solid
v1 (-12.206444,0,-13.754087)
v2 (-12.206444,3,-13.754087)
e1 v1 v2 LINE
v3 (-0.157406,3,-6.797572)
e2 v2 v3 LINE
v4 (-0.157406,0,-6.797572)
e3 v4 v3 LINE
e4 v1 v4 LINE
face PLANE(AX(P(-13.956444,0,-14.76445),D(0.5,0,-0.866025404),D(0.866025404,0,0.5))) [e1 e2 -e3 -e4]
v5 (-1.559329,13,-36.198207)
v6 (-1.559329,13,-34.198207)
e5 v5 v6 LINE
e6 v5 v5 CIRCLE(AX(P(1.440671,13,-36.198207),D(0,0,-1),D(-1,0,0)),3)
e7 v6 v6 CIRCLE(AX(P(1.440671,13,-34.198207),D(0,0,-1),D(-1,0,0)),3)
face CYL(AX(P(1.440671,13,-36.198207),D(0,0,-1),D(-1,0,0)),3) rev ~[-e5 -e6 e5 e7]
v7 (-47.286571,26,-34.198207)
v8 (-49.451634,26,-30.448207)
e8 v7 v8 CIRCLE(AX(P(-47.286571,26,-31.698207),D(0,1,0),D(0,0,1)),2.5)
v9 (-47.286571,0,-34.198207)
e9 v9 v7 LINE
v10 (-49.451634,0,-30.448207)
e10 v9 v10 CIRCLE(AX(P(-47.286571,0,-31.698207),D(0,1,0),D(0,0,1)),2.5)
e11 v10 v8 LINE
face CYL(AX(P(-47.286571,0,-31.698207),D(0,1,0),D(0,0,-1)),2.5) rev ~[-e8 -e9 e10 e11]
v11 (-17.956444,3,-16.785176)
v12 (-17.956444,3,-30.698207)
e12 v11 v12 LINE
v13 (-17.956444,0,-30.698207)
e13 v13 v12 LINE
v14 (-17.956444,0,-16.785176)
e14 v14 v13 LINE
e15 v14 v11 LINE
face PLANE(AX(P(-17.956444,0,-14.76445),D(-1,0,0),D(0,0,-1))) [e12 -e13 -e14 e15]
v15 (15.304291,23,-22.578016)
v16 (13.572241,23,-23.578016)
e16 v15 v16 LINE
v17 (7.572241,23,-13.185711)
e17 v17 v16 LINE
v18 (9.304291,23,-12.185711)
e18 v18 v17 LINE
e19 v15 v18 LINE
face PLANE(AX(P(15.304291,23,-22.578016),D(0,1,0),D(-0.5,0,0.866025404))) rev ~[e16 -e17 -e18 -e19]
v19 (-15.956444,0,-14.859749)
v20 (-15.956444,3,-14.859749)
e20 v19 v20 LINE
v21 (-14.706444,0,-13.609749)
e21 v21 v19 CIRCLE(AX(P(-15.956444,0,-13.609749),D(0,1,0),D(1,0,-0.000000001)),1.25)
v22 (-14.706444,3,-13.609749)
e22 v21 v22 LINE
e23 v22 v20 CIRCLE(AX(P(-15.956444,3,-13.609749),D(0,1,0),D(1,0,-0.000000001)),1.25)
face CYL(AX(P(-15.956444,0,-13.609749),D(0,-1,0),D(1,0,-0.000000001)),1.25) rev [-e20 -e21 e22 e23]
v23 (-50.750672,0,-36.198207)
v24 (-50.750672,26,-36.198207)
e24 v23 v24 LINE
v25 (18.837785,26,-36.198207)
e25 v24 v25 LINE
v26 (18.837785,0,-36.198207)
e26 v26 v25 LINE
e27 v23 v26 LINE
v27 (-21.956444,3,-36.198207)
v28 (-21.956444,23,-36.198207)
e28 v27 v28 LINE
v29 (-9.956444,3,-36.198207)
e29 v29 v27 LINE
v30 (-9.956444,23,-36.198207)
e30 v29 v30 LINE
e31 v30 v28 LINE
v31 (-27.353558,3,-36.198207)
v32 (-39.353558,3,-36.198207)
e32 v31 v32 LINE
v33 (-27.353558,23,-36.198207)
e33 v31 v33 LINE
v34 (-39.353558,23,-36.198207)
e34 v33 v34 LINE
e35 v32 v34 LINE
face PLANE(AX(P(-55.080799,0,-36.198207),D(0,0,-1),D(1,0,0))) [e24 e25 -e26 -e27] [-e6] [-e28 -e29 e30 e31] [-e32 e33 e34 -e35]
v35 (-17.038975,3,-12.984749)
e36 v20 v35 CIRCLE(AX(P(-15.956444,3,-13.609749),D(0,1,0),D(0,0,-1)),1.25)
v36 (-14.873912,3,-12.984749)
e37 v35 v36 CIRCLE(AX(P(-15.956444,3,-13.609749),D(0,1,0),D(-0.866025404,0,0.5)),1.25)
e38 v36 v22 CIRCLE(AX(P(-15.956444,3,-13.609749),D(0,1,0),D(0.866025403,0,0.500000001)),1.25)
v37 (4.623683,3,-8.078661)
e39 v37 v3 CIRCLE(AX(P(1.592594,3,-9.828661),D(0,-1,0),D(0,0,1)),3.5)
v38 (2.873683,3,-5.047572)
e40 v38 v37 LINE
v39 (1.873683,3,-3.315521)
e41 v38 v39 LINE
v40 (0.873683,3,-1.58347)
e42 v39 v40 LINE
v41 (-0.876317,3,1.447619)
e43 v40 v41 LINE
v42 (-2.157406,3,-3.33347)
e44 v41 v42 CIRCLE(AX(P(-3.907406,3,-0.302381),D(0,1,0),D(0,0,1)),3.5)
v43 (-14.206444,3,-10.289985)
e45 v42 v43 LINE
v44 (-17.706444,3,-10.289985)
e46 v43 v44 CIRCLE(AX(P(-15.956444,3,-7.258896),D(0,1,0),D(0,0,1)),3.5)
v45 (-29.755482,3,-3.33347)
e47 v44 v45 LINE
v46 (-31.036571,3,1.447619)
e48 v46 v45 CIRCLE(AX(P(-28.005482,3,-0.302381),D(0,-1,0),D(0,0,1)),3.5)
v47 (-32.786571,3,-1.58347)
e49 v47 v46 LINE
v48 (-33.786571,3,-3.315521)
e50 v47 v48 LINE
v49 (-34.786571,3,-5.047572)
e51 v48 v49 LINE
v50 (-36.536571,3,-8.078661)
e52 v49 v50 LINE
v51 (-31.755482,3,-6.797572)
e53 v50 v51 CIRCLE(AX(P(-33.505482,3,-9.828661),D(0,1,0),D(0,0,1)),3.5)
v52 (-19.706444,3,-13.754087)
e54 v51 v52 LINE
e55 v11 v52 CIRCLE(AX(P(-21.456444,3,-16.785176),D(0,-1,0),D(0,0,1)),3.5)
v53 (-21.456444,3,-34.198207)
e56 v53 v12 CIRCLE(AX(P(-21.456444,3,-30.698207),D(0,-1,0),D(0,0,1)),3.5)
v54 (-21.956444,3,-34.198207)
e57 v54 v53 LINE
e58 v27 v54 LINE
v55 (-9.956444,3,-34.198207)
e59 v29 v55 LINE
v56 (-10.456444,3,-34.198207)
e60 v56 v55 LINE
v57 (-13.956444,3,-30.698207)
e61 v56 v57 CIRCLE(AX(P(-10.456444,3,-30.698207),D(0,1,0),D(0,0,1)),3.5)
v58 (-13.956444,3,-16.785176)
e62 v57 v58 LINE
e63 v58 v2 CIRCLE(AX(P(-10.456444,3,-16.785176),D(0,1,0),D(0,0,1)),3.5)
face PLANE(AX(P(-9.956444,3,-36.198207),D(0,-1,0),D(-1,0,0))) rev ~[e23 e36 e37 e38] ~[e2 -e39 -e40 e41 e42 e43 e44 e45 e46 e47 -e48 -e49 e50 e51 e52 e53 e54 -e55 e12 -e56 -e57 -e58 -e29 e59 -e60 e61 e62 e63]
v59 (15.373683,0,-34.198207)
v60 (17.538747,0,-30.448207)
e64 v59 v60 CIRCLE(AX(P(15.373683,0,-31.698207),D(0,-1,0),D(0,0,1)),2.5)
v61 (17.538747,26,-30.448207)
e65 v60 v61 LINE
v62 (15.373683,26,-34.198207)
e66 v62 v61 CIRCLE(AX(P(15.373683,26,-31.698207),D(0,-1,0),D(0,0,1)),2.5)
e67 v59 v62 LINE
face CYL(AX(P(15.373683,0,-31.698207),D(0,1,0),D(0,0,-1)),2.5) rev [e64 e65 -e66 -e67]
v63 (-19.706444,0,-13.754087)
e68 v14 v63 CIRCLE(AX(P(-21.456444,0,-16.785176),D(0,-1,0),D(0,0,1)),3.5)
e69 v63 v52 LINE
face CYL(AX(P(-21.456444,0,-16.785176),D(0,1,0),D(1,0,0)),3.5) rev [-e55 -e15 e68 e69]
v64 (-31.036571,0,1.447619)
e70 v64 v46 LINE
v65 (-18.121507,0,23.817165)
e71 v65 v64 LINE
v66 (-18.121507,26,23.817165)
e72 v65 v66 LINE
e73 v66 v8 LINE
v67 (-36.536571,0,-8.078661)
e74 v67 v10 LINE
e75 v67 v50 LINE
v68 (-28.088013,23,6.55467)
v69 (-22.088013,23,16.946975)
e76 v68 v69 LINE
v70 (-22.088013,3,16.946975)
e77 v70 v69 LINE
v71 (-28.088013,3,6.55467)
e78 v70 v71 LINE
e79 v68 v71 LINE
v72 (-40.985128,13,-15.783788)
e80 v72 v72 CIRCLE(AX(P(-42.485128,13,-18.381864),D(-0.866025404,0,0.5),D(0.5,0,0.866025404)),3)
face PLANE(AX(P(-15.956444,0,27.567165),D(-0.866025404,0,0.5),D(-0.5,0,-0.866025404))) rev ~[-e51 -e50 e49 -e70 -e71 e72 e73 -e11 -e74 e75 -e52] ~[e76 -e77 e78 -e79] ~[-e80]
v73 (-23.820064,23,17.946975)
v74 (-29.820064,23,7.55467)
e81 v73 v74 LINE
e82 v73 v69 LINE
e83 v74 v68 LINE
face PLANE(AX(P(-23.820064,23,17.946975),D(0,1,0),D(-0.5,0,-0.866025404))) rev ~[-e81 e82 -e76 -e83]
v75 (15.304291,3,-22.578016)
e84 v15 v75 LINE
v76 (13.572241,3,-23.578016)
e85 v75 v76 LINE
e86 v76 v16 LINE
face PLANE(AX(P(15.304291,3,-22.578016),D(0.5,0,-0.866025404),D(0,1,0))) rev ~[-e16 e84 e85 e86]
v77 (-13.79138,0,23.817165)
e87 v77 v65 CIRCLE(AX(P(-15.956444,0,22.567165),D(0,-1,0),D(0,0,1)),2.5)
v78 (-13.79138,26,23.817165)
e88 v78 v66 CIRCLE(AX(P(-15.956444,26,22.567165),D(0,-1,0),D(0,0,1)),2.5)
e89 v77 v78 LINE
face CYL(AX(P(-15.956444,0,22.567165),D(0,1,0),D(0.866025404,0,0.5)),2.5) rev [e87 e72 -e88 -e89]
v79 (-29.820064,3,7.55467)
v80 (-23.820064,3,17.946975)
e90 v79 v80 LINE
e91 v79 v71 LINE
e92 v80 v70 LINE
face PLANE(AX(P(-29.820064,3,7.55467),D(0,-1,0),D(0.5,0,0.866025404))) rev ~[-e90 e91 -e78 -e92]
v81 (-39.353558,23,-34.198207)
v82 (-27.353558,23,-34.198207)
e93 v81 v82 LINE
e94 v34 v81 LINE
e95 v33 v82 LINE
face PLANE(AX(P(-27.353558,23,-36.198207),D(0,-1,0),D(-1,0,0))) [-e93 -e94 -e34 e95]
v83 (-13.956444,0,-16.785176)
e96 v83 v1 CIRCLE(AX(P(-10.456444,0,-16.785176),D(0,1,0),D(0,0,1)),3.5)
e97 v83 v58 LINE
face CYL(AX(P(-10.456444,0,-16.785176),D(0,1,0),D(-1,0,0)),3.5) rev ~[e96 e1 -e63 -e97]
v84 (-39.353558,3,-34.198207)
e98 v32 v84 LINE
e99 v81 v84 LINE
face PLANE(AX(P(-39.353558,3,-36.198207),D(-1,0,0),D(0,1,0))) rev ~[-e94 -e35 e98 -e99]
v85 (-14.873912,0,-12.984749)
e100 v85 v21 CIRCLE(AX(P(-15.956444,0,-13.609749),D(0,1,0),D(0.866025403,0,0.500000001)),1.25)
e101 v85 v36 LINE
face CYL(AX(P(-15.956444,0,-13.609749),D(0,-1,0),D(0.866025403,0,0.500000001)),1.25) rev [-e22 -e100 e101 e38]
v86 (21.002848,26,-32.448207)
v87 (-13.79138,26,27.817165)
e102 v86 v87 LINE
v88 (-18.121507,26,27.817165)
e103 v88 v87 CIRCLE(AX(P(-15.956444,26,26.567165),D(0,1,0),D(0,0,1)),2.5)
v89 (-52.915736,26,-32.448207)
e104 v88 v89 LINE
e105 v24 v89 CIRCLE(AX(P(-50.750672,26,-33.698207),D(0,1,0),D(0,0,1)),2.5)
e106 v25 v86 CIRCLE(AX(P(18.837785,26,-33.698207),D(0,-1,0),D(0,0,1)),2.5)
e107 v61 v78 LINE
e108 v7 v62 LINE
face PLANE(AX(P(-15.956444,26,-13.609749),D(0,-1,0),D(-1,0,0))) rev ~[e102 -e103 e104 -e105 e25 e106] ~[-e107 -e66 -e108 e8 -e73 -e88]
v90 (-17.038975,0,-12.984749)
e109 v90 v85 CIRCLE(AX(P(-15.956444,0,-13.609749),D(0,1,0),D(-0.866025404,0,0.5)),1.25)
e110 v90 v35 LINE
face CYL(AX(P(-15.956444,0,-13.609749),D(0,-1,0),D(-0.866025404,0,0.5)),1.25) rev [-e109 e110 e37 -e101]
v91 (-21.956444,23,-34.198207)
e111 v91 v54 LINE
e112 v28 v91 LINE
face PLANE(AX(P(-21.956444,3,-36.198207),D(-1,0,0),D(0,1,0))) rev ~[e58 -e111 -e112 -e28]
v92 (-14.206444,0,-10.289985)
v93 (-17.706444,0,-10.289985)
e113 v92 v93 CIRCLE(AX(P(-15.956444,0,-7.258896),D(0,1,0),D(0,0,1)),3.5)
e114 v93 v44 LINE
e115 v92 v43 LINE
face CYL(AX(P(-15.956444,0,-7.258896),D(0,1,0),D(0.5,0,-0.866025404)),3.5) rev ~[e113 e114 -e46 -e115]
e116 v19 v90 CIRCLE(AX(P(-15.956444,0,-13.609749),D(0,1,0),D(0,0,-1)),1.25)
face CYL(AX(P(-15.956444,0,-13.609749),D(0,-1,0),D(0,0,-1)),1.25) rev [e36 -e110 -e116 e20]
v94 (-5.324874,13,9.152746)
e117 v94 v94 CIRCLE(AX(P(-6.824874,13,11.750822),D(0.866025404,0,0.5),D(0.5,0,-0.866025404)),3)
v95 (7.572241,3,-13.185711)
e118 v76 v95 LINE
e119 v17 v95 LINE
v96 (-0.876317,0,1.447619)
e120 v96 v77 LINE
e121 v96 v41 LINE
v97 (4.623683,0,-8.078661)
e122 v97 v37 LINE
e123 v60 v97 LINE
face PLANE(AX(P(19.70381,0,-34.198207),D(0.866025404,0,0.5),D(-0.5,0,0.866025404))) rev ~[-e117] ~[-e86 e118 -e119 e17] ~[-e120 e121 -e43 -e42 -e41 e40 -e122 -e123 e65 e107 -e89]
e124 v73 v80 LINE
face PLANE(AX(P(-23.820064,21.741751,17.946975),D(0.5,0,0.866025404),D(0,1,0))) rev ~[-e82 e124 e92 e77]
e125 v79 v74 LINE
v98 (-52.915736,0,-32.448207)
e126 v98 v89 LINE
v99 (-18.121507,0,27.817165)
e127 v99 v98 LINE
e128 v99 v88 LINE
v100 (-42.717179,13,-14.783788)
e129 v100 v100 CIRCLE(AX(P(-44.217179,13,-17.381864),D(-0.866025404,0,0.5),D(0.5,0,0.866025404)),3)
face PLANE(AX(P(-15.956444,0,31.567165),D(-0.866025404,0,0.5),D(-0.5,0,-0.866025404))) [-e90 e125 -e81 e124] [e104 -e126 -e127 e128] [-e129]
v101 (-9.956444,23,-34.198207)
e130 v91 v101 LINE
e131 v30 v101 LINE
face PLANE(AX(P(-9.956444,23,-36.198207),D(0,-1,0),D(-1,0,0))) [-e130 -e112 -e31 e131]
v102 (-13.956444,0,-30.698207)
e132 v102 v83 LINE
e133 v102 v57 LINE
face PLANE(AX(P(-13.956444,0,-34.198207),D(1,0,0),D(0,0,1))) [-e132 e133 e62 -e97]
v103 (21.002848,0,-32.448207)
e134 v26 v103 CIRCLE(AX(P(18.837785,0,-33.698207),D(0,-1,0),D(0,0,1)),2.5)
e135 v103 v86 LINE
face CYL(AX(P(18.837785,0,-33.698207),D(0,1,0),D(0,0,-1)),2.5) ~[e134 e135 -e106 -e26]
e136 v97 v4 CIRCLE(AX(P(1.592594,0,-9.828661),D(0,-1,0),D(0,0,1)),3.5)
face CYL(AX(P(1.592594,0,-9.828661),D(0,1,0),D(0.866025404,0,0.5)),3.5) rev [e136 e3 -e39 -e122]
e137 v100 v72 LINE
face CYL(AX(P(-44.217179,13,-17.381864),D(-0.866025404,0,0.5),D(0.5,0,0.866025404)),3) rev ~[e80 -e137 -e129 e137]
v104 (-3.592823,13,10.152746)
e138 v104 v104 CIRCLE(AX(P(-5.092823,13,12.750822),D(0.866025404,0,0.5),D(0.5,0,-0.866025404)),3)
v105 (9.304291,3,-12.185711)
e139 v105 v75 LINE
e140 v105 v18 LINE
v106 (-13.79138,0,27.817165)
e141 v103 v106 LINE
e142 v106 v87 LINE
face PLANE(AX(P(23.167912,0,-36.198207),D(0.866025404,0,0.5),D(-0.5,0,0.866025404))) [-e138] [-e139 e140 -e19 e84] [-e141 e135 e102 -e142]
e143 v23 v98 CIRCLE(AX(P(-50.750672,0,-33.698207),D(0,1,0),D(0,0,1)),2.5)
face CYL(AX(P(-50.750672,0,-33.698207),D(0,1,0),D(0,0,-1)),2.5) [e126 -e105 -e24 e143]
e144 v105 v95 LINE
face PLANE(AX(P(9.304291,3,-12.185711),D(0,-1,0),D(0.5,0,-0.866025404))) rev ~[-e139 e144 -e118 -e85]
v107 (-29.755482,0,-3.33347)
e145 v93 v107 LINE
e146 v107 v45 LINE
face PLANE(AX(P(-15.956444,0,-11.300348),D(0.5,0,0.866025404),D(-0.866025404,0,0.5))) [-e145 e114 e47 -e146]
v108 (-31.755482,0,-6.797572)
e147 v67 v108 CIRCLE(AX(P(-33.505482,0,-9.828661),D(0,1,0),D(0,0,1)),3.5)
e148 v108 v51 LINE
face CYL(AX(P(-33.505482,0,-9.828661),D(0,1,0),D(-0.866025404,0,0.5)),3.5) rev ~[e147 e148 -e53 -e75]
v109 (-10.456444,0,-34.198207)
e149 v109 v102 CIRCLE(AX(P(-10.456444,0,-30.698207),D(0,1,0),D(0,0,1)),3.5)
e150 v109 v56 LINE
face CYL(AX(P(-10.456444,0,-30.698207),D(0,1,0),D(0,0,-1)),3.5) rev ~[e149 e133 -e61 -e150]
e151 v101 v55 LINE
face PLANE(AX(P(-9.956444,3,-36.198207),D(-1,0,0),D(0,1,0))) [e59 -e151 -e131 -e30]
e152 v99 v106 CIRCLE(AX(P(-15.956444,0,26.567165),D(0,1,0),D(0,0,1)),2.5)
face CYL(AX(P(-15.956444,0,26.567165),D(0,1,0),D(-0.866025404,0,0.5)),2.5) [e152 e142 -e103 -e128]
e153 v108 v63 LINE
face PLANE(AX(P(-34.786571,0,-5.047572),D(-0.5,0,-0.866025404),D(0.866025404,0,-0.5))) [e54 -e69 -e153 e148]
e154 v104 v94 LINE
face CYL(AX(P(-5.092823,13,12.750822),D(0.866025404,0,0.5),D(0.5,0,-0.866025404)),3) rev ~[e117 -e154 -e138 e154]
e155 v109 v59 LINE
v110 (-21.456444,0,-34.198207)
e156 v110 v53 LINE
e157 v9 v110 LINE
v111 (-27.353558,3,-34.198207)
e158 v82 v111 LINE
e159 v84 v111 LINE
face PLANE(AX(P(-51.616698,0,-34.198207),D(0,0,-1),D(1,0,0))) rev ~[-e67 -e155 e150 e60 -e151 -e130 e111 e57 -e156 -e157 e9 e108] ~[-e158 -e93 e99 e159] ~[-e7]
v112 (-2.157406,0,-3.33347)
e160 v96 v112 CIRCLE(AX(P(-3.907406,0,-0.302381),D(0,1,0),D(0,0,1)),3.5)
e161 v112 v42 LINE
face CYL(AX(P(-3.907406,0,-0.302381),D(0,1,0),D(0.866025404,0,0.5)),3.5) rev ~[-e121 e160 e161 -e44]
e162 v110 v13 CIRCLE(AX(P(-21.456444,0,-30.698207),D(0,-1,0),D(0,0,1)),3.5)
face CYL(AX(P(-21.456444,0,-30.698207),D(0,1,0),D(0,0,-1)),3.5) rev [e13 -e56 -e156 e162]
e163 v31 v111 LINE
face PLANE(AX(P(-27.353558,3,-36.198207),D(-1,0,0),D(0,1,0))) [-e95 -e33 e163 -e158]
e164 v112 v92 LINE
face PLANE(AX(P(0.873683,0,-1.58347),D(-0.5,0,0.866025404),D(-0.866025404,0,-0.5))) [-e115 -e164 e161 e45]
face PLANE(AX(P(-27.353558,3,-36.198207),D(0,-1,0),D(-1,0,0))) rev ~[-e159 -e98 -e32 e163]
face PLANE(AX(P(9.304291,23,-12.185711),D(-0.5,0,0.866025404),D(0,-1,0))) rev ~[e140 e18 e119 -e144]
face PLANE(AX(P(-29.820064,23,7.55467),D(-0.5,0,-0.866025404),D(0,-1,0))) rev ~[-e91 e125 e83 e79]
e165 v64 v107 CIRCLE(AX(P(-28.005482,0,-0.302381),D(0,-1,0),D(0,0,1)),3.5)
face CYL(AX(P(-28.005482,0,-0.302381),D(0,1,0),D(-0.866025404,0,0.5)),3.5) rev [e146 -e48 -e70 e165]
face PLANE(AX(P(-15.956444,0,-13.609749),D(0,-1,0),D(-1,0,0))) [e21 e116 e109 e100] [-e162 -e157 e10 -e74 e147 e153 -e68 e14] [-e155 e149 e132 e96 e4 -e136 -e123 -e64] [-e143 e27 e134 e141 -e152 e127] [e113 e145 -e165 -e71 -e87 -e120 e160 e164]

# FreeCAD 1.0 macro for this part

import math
import FreeCAD as App
import Part
import Sketcher
Q = App.Units.Quantity


def edges_at(feature, points):
    """Names of the edges that pass closest to the given points."""
    edges = feature.Shape.Edges
    near = lambda p: min(range(len(edges)), key=lambda i: edges[i].distToShape(Part.Vertex(*p))[0])
    return sorted({f"Edge{near(p) + 1}" for p in points})

doc = App.newDocument("Part")
body = doc.addObject("PartDesign::Body", "Body")

sketch1 = doc.addObject("Sketcher::SketchObject", "Sketch")
body.addObject(sketch1)
sketch1.AttachmentSupport = (doc.XZ_Plane, [""])
sketch1.MapMode = "FlatFace"
sketch1.addGeometry([
    Part.LineSegment(App.Vector(23, -36, 0), App.Vector(-55, -36, 0)),
    Part.LineSegment(App.Vector(-55, -36, 0), App.Vector(-16, 32, 0)),
    Part.LineSegment(App.Vector(-16, 32, 0), App.Vector(23, -36, 0)),
    Part.LineSegment(App.Vector(-52, -34, 0), App.Vector(20, -34, 0)),
    Part.LineSegment(App.Vector(20, -34, 0), App.Vector(-16, 28, 0)),
    Part.LineSegment(App.Vector(-16, 28, 0), App.Vector(-52, -34, 0)),
], False)
sketch1.addConstraint([
    Sketcher.Constraint("Coincident", 0, 2, 1, 1),
    Sketcher.Constraint("Coincident", 1, 2, 2, 1),
    Sketcher.Constraint("Coincident", 2, 2, 0, 1),
    Sketcher.Constraint("Coincident", 3, 2, 4, 1),
    Sketcher.Constraint("Coincident", 4, 2, 5, 1),
    Sketcher.Constraint("Coincident", 5, 2, 3, 1),
    Sketcher.Constraint("Horizontal", 0),
    Sketcher.Constraint("Horizontal", 3),
    Sketcher.Constraint("Parallel", 2, 4),
    Sketcher.Constraint("Parallel", 1, 5),
    Sketcher.Constraint("Vertical", 1, 2, 4, 2),
    Sketcher.Constraint("Equal", 1, 2),
    Sketcher.Constraint("Angle", 1, Q("60 deg")),
    Sketcher.Constraint("DistanceY", 2, 2, 3, 2, 2.0),
    Sketcher.Constraint("DistanceY", 4, 2, 1, 2, 4.0),
    Sketcher.Constraint("DistanceX", 0, 2, 0, 1, 78.248711),
    Sketcher.Constraint("DistanceX", 0, 2, -1, 1, 55.080799),
    Sketcher.Constraint("DistanceY", 0, 2, -1, 1, 36.198207),
])
pad1 = doc.addObject("PartDesign::Pad", "Pad")
body.addObject(pad1)
pad1.Profile = sketch1
pad1.Length = 26
pad1.Reversed = True
doc.recompute()

fillet = doc.addObject("PartDesign::Fillet", "Fillet")
body.addObject(fillet)
fillet.Base = (pad1, edges_at(pad1, [
    (-51.617, 13, -34.198),
    (-15.956, 13, 27.567),
    (19.704, 13, -34.198),
    (-55.081, 13, -36.198),
    (23.168, 13, -36.198),
    (-15.956, 13, 31.567),
]))
fillet.Radius = 2.5

sketch2 = doc.addObject("Sketcher::SketchObject", "Sketch001")
body.addObject(sketch2)
sketch2.Placement = App.Placement(App.Vector(-25.636316, 0, 14.801134), App.Rotation(App.Vector(0.5, 0, 0.866025404), App.Vector(0, 1, 0), App.Vector(-0.866025404, 0, 0.5), "ZXY"))
sketch2.addGeometry([
    Part.LineSegment(App.Vector(3.6, 4.3, 0), App.Vector(-8.4, 8.7, 0)),
    Part.LineSegment(App.Vector(-8.4, 8.7, 0), App.Vector(-8.4, 3, 0)),
    Part.LineSegment(App.Vector(-8.4, 3, 0), App.Vector(3.6, 3, 0)),
    Part.LineSegment(App.Vector(3.6, 3, 0), App.Vector(3.6, 4.3, 0)),
], False)
sketch2.addConstraint([
    Sketcher.Constraint("Coincident", 0, 2, 1, 1),
    Sketcher.Constraint("Coincident", 1, 2, 2, 1),
    Sketcher.Constraint("Coincident", 2, 2, 3, 1),
    Sketcher.Constraint("Coincident", 3, 2, 0, 1),
    Sketcher.Constraint("Vertical", 1),
    Sketcher.Constraint("Horizontal", 2),
    Sketcher.Constraint("Vertical", 3),
    Sketcher.Constraint("DistanceX", 2, 1, 2, 2, 12.0),
    Sketcher.Constraint("DistanceY", -1, 1, 1, 2, 3.0),
    Sketcher.Constraint("DistanceY", 1, 2, 1, 1, 5.741751),
    Sketcher.Constraint("DistanceY", 3, 1, 3, 2, 1.258249),
    Sketcher.Constraint("DistanceX", 0, 2, -1, 1, 8.367496),
])
pocket1 = doc.addObject("PartDesign::Pocket", "Pocket")
body.addObject(pocket1)
pocket1.Profile = sketch2
pocket1.Type = "UpToFirst"

sketch3 = doc.addObject("Sketcher::SketchObject", "Sketch002")
body.addObject(sketch3)
sketch3.Placement = App.Placement(App.Vector(-25.636316, 0, 14.801134), App.Rotation(App.Vector(0.5, 0, 0.866025404), App.Vector(0, 1, 0), App.Vector(-0.866025404, 0, 0.5), "ZXY"))
sketch3.addGeometry([
    Part.LineSegment(App.Vector(-8.4, 13, 0), App.Vector(-8.4, 8.7, 0)),
    Part.LineSegment(App.Vector(-8.4, 8.7, 0), App.Vector(3.6, 4.3, 0)),
    Part.LineSegment(App.Vector(3.6, 4.3, 0), App.Vector(3.6, 13, 0)),
    Part.LineSegment(App.Vector(3.6, 13, 0), App.Vector(-8.4, 13, 0)),
], False)
sketch3.addConstraint([
    Sketcher.Constraint("Coincident", 0, 2, 1, 1),
    Sketcher.Constraint("Coincident", 1, 2, 2, 1),
    Sketcher.Constraint("Coincident", 2, 2, 3, 1),
    Sketcher.Constraint("Coincident", 3, 2, 0, 1),
    Sketcher.Constraint("Vertical", 0),
    Sketcher.Constraint("Vertical", 2),
    Sketcher.Constraint("Horizontal", 3),
    Sketcher.Constraint("DistanceX", 3, 2, 3, 1, 12.0),
    Sketcher.Constraint("DistanceY", -1, 1, 2, 2, 13.0),
    Sketcher.Constraint("DistanceY", 0, 2, 0, 1, 4.258249),
    Sketcher.Constraint("DistanceY", 2, 1, 2, 2, 8.741751),
    Sketcher.Constraint("DistanceX", 0, 2, -1, 1, 8.367496),
])
pocket2 = doc.addObject("PartDesign::Pocket", "Pocket001")
body.addObject(pocket2)
pocket2.Profile = sketch3
pocket2.Type = "UpToFirst"

sketch4 = doc.addObject("Sketcher::SketchObject", "Sketch003")
body.addObject(sketch4)
sketch4.Placement = App.Placement(App.Vector(-25.636316, 0, 14.801134), App.Rotation(App.Vector(0.5, 0, 0.866025404), App.Vector(0, 1, 0), App.Vector(-0.866025404, 0, 0.5), "ZXY"))
sketch4.addGeometry([
    Part.LineSegment(App.Vector(3.6, 21.7, 0), App.Vector(-8.4, 17.3, 0)),
    Part.LineSegment(App.Vector(-8.4, 17.3, 0), App.Vector(-8.4, 13, 0)),
    Part.LineSegment(App.Vector(-8.4, 13, 0), App.Vector(3.6, 13, 0)),
    Part.LineSegment(App.Vector(3.6, 13, 0), App.Vector(3.6, 21.7, 0)),
], False)
sketch4.addConstraint([
    Sketcher.Constraint("Coincident", 0, 2, 1, 1),
    Sketcher.Constraint("Coincident", 1, 2, 2, 1),
    Sketcher.Constraint("Coincident", 2, 2, 3, 1),
    Sketcher.Constraint("Coincident", 3, 2, 0, 1),
    Sketcher.Constraint("Vertical", 1),
    Sketcher.Constraint("Horizontal", 2),
    Sketcher.Constraint("Vertical", 3),
    Sketcher.Constraint("DistanceX", 2, 1, 2, 2, 12.0),
    Sketcher.Constraint("DistanceY", -1, 1, 1, 2, 13.0),
    Sketcher.Constraint("DistanceY", 1, 2, 1, 1, 4.258249),
    Sketcher.Constraint("DistanceY", 3, 1, 3, 2, 8.741751),
    Sketcher.Constraint("DistanceX", 0, 2, -1, 1, 8.367496),
])
pocket3 = doc.addObject("PartDesign::Pocket", "Pocket002")
body.addObject(pocket3)
pocket3.Profile = sketch4
pocket3.Type = "UpToFirst"

sketch5 = doc.addObject("Sketcher::SketchObject", "Sketch004")
body.addObject(sketch5)
sketch5.Placement = App.Placement(App.Vector(-25.636316, 0, 14.801134), App.Rotation(App.Vector(0.5, 0, 0.866025404), App.Vector(0, 1, 0), App.Vector(-0.866025404, 0, 0.5), "ZXY"))
sketch5.addGeometry([
    Part.LineSegment(App.Vector(-8.4, 23, 0), App.Vector(-8.4, 17.3, 0)),
    Part.LineSegment(App.Vector(-8.4, 17.3, 0), App.Vector(3.6, 21.7, 0)),
    Part.LineSegment(App.Vector(3.6, 21.7, 0), App.Vector(3.6, 23, 0)),
    Part.LineSegment(App.Vector(3.6, 23, 0), App.Vector(-8.4, 23, 0)),
], False)
sketch5.addConstraint([
    Sketcher.Constraint("Coincident", 0, 2, 1, 1),
    Sketcher.Constraint("Coincident", 1, 2, 2, 1),
    Sketcher.Constraint("Coincident", 2, 2, 3, 1),
    Sketcher.Constraint("Coincident", 3, 2, 0, 1),
    Sketcher.Constraint("Vertical", 0),
    Sketcher.Constraint("Vertical", 2),
    Sketcher.Constraint("Horizontal", 3),
    Sketcher.Constraint("DistanceX", 3, 2, 3, 1, 12.0),
    Sketcher.Constraint("DistanceY", -1, 1, 2, 2, 23.0),
    Sketcher.Constraint("DistanceY", 0, 2, 0, 1, 5.741751),
    Sketcher.Constraint("DistanceY", 2, 1, 2, 2, 1.258249),
    Sketcher.Constraint("DistanceX", 0, 2, -1, 1, 8.367496),
])
pocket4 = doc.addObject("PartDesign::Pocket", "Pocket003")
body.addObject(pocket4)
pocket4.Profile = sketch5
pocket4.Type = "UpToFirst"

sketch6 = doc.addObject("Sketcher::SketchObject", "Sketch005")
body.addObject(sketch6)
sketch6.Placement = App.Placement(App.Vector(-25.636316, 0, 14.801134), App.Rotation(App.Vector(0.5, 0, 0.866025404), App.Vector(0, 1, 0), App.Vector(-0.866025404, 0, 0.5), "ZXY"))
sketch6.addGeometry(Part.Circle(App.Vector(-37.2, 13, 0), App.Vector(0, 0, 1), 3), False)
sketch6.addConstraint([
    Sketcher.Constraint("Diameter", 0, 6.0),
    Sketcher.Constraint("DistanceY", -1, 1, 0, 3, 13.0),
    Sketcher.Constraint("DistanceX", 0, 3, -1, 1, 37.161725),
])
pocket5 = doc.addObject("PartDesign::Pocket", "Pocket004")
body.addObject(pocket5)
pocket5.Profile = sketch6
pocket5.Type = "UpToFirst"

sketch7 = doc.addObject("Sketcher::SketchObject", "Sketch006")
body.addObject(sketch7)
sketch7.Placement = App.Placement(App.Vector(1.701651, 0, 0.982449), App.Rotation(App.Vector(0.5, 0, -0.866025404), App.Vector(0, 1, 0), App.Vector(0.866025404, 0, 0.5), "ZXY"))
sketch7.addGeometry([
    Part.LineSegment(App.Vector(15.2, 13, 0), App.Vector(15.2, 8.7, 0)),
    Part.LineSegment(App.Vector(15.2, 8.7, 0), App.Vector(27.2, 4.3, 0)),
    Part.LineSegment(App.Vector(27.2, 4.3, 0), App.Vector(27.2, 13, 0)),
    Part.LineSegment(App.Vector(27.2, 13, 0), App.Vector(15.2, 13, 0)),
], False)
sketch7.addConstraint([
    Sketcher.Constraint("Coincident", 0, 2, 1, 1),
    Sketcher.Constraint("Coincident", 1, 2, 2, 1),
    Sketcher.Constraint("Coincident", 2, 2, 3, 1),
    Sketcher.Constraint("Coincident", 3, 2, 0, 1),
    Sketcher.Constraint("Vertical", 0),
    Sketcher.Constraint("Vertical", 2),
    Sketcher.Constraint("Horizontal", 3),
    Sketcher.Constraint("DistanceX", 3, 2, 3, 1, 12.0),
    Sketcher.Constraint("DistanceY", -1, 1, 2, 2, 13.0),
    Sketcher.Constraint("DistanceY", 0, 2, 0, 1, 4.258249),
    Sketcher.Constraint("DistanceY", 2, 1, 2, 2, 8.741751),
    Sketcher.Constraint("DistanceX", -1, 1, 0, 2, 15.205281),
])
pocket6 = doc.addObject("PartDesign::Pocket", "Pocket005")
body.addObject(pocket6)
pocket6.Profile = sketch7
pocket6.Type = "UpToFirst"

sketch8 = doc.addObject("Sketcher::SketchObject", "Sketch007")
body.addObject(sketch8)
sketch8.Placement = App.Placement(App.Vector(1.701651, 0, 0.982449), App.Rotation(App.Vector(0.5, 0, -0.866025404), App.Vector(0, 1, 0), App.Vector(0.866025404, 0, 0.5), "ZXY"))
sketch8.addGeometry([
    Part.LineSegment(App.Vector(27.2, 4.3, 0), App.Vector(15.2, 8.7, 0)),
    Part.LineSegment(App.Vector(15.2, 8.7, 0), App.Vector(15.2, 3, 0)),
    Part.LineSegment(App.Vector(15.2, 3, 0), App.Vector(27.2, 3, 0)),
    Part.LineSegment(App.Vector(27.2, 3, 0), App.Vector(27.2, 4.3, 0)),
], False)
sketch8.addConstraint([
    Sketcher.Constraint("Coincident", 0, 2, 1, 1),
    Sketcher.Constraint("Coincident", 1, 2, 2, 1),
    Sketcher.Constraint("Coincident", 2, 2, 3, 1),
    Sketcher.Constraint("Coincident", 3, 2, 0, 1),
    Sketcher.Constraint("Vertical", 1),
    Sketcher.Constraint("Horizontal", 2),
    Sketcher.Constraint("Vertical", 3),
    Sketcher.Constraint("DistanceX", 2, 1, 2, 2, 12.0),
    Sketcher.Constraint("DistanceY", -1, 1, 1, 2, 3.0),
    Sketcher.Constraint("DistanceY", 1, 2, 1, 1, 5.741751),
    Sketcher.Constraint("DistanceY", 3, 1, 3, 2, 1.258249),
    Sketcher.Constraint("DistanceX", -1, 1, 0, 2, 15.205281),
])
pocket7 = doc.addObject("PartDesign::Pocket", "Pocket006")
body.addObject(pocket7)
pocket7.Profile = sketch8
pocket7.Type = "UpToFirst"

sketch9 = doc.addObject("Sketcher::SketchObject", "Sketch008")
body.addObject(sketch9)
sketch9.Placement = App.Placement(App.Vector(1.701651, 0, 0.982449), App.Rotation(App.Vector(0.5, 0, -0.866025404), App.Vector(0, 1, 0), App.Vector(0.866025404, 0, 0.5), "ZXY"))
sketch9.addGeometry([
    Part.LineSegment(App.Vector(27.2, 21.7, 0), App.Vector(15.2, 17.3, 0)),
    Part.LineSegment(App.Vector(15.2, 17.3, 0), App.Vector(15.2, 13, 0)),
    Part.LineSegment(App.Vector(15.2, 13, 0), App.Vector(27.2, 13, 0)),
    Part.LineSegment(App.Vector(27.2, 13, 0), App.Vector(27.2, 21.7, 0)),
], False)
sketch9.addConstraint([
    Sketcher.Constraint("Coincident", 0, 2, 1, 1),
    Sketcher.Constraint("Coincident", 1, 2, 2, 1),
    Sketcher.Constraint("Coincident", 2, 2, 3, 1),
    Sketcher.Constraint("Coincident", 3, 2, 0, 1),
    Sketcher.Constraint("Vertical", 1),
    Sketcher.Constraint("Horizontal", 2),
    Sketcher.Constraint("Vertical", 3),
    Sketcher.Constraint("DistanceX", 2, 1, 2, 2, 12.0),
    Sketcher.Constraint("DistanceY", -1, 1, 1, 2, 13.0),
    Sketcher.Constraint("DistanceY", 1, 2, 1, 1, 4.258249),
    Sketcher.Constraint("DistanceY", 3, 1, 3, 2, 8.741751),
    Sketcher.Constraint("DistanceX", -1, 1, 0, 2, 15.205281),
])
pocket8 = doc.addObject("PartDesign::Pocket", "Pocket007")
body.addObject(pocket8)
pocket8.Profile = sketch9
pocket8.Type = "UpToFirst"

sketch10 = doc.addObject("Sketcher::SketchObject", "Sketch009")
body.addObject(sketch10)
sketch10.Placement = App.Placement(App.Vector(1.701651, 0, 0.982449), App.Rotation(App.Vector(0.5, 0, -0.866025404), App.Vector(0, 1, 0), App.Vector(0.866025404, 0, 0.5), "ZXY"))
sketch10.addGeometry([
    Part.LineSegment(App.Vector(15.2, 23, 0), App.Vector(15.2, 17.3, 0)),
    Part.LineSegment(App.Vector(15.2, 17.3, 0), App.Vector(27.2, 21.7, 0)),
    Part.LineSegment(App.Vector(27.2, 21.7, 0), App.Vector(27.2, 23, 0)),
    Part.LineSegment(App.Vector(27.2, 23, 0), App.Vector(15.2, 23, 0)),
], False)
sketch10.addConstraint([
    Sketcher.Constraint("Coincident", 0, 2, 1, 1),
    Sketcher.Constraint("Coincident", 1, 2, 2, 1),
    Sketcher.Constraint("Coincident", 2, 2, 3, 1),
    Sketcher.Constraint("Coincident", 3, 2, 0, 1),
    Sketcher.Constraint("Vertical", 0),
    Sketcher.Constraint("Vertical", 2),
    Sketcher.Constraint("Horizontal", 3),
    Sketcher.Constraint("DistanceX", 3, 2, 3, 1, 12.0),
    Sketcher.Constraint("DistanceY", -1, 1, 2, 2, 23.0),
    Sketcher.Constraint("DistanceY", 0, 2, 0, 1, 5.741751),
    Sketcher.Constraint("DistanceY", 2, 1, 2, 2, 1.258249),
    Sketcher.Constraint("DistanceX", -1, 1, 0, 2, 15.205281),
])
pocket9 = doc.addObject("PartDesign::Pocket", "Pocket008")
body.addObject(pocket9)
pocket9.Profile = sketch10
pocket9.Type = "UpToFirst"

sketch11 = doc.addObject("Sketcher::SketchObject", "Sketch010")
body.addObject(sketch11)
sketch11.Placement = App.Placement(App.Vector(1.701651, 0, 0.982449), App.Rotation(App.Vector(0.5, 0, -0.866025404), App.Vector(0, 1, 0), App.Vector(0.866025404, 0, 0.5), "ZXY"))
sketch11.addGeometry(Part.Circle(App.Vector(-13.6, 13, 0), App.Vector(0, 0, 1), 3), False)
sketch11.addConstraint([
    Sketcher.Constraint("Diameter", 0, 6.0),
    Sketcher.Constraint("DistanceY", -1, 1, 0, 3, 13.0),
    Sketcher.Constraint("DistanceX", 0, 3, -1, 1, 13.588947),
])
pocket10 = doc.addObject("PartDesign::Pocket", "Pocket009")
body.addObject(pocket10)
pocket10.Profile = sketch11
pocket10.Type = "UpToFirst"

sketch12 = doc.addObject("Sketcher::SketchObject", "Sketch011")
body.addObject(sketch12)
sketch12.AttachmentSupport = (doc.XY_Plane, [""])
sketch12.MapMode = "FlatFace"
sketch12.AttachmentOffset = App.Placement(App.Vector(0, 0, -36.198207), App.Rotation())
sketch12.addGeometry(Part.Circle(App.Vector(1.4, 13, 0), App.Vector(0, 0, 1), 3), False)
sketch12.addConstraint([
    Sketcher.Constraint("Diameter", 0, 6.0),
    Sketcher.Constraint("DistanceY", -1, 1, 0, 3, 13.0),
    Sketcher.Constraint("DistanceX", -1, 1, 0, 3, 1.440671),
])
pocket11 = doc.addObject("PartDesign::Pocket", "Pocket010")
body.addObject(pocket11)
pocket11.Profile = sketch12
pocket11.Type = "UpToFirst"
pocket11.Reversed = True

sketch13 = doc.addObject("Sketcher::SketchObject", "Sketch012")
body.addObject(sketch13)
sketch13.AttachmentSupport = (doc.XY_Plane, [""])
sketch13.MapMode = "FlatFace"
sketch13.AttachmentOffset = App.Placement(App.Vector(0, 0, -36.198207), App.Rotation())
sketch13.addGeometry([
    Part.LineSegment(App.Vector(-10, 23, 0), App.Vector(-10, 3, 0)),
    Part.LineSegment(App.Vector(-10, 3, 0), App.Vector(-22, 3, 0)),
    Part.LineSegment(App.Vector(-22, 3, 0), App.Vector(-22, 23, 0)),
    Part.LineSegment(App.Vector(-22, 23, 0), App.Vector(-10, 23, 0)),
], False)
sketch13.addConstraint([
    Sketcher.Constraint("Coincident", 0, 2, 1, 1),
    Sketcher.Constraint("Coincident", 1, 2, 2, 1),
    Sketcher.Constraint("Coincident", 2, 2, 3, 1),
    Sketcher.Constraint("Coincident", 3, 2, 0, 1),
    Sketcher.Constraint("Vertical", 0),
    Sketcher.Constraint("Horizontal", 1),
    Sketcher.Constraint("Vertical", 2),
    Sketcher.Constraint("Horizontal", 3),
    Sketcher.Constraint("DistanceX", 1, 2, 1, 1, 12.0),
    Sketcher.Constraint("DistanceY", 0, 2, 0, 1, 20.0),
    Sketcher.Constraint("DistanceY", -1, 1, 0, 2, 3.0),
    Sketcher.Constraint("DistanceX", 0, 2, -1, 1, 9.956444),
])
pocket12 = doc.addObject("PartDesign::Pocket", "Pocket011")
body.addObject(pocket12)
pocket12.Profile = sketch13
pocket12.Type = "UpToFirst"
pocket12.Reversed = True

sketch14 = doc.addObject("Sketcher::SketchObject", "Sketch013")
body.addObject(sketch14)
sketch14.AttachmentSupport = (doc.XY_Plane, [""])
sketch14.MapMode = "FlatFace"
sketch14.AttachmentOffset = App.Placement(App.Vector(0, 0, -36.198207), App.Rotation())
sketch14.addGeometry([
    Part.LineSegment(App.Vector(-27, 23, 0), App.Vector(-27, 3, 0)),
    Part.LineSegment(App.Vector(-27, 3, 0), App.Vector(-39, 3, 0)),
    Part.LineSegment(App.Vector(-39, 3, 0), App.Vector(-39, 23, 0)),
    Part.LineSegment(App.Vector(-39, 23, 0), App.Vector(-27, 23, 0)),
], False)
sketch14.addConstraint([
    Sketcher.Constraint("Coincident", 0, 2, 1, 1),
    Sketcher.Constraint("Coincident", 1, 2, 2, 1),
    Sketcher.Constraint("Coincident", 2, 2, 3, 1),
    Sketcher.Constraint("Coincident", 3, 2, 0, 1),
    Sketcher.Constraint("Vertical", 0),
    Sketcher.Constraint("Horizontal", 1),
    Sketcher.Constraint("Vertical", 2),
    Sketcher.Constraint("Horizontal", 3),
    Sketcher.Constraint("DistanceX", 1, 2, 1, 1, 12.0),
    Sketcher.Constraint("DistanceY", 0, 2, 0, 1, 20.0),
    Sketcher.Constraint("DistanceY", -1, 1, 0, 2, 3.0),
    Sketcher.Constraint("DistanceX", 0, 2, -1, 1, 27.353558),
])
pocket13 = doc.addObject("PartDesign::Pocket", "Pocket012")
body.addObject(pocket13)
pocket13.Profile = sketch14
pocket13.Type = "UpToFirst"
pocket13.Reversed = True

sketch15 = doc.addObject("Sketcher::SketchObject", "Sketch014")
body.addObject(sketch15)
sketch15.AttachmentSupport = (doc.XZ_Plane, [""])
sketch15.MapMode = "FlatFace"
sketch15.addGeometry([
    Part.LineSegment(App.Vector(-33.8, -3.3, 0), App.Vector(-34.8, -5, 0)),
    Part.LineSegment(App.Vector(-34.8, -5, 0), App.Vector(-18, -14.8, 0)),
    Part.LineSegment(App.Vector(-18, -14.8, 0), App.Vector(-18, -34.2, 0)),
    Part.LineSegment(App.Vector(-18, -34.2, 0), App.Vector(-14, -34.2, 0)),
    Part.LineSegment(App.Vector(-14, -34.2, 0), App.Vector(-14, -14.8, 0)),
    Part.LineSegment(App.Vector(-14, -14.8, 0), App.Vector(2.9, -5, 0)),
    Part.LineSegment(App.Vector(2.9, -5, 0), App.Vector(1.9, -3.3, 0)),
    Part.LineSegment(App.Vector(1.9, -3.3, 0), App.Vector(0.9, -1.6, 0)),
    Part.LineSegment(App.Vector(0.9, -1.6, 0), App.Vector(-16, -11.3, 0)),
    Part.LineSegment(App.Vector(-16, -11.3, 0), App.Vector(-32.8, -1.6, 0)),
    Part.LineSegment(App.Vector(-32.8, -1.6, 0), App.Vector(-33.8, -3.3, 0)),
    Part.ArcOfCircle(Part.Circle(App.Vector(-16, -13.6, 0), App.Vector(0, 0, 1), 1.2), math.radians(150), math.radians(270)),
    Part.ArcOfCircle(Part.Circle(App.Vector(-16, -13.6, 0), App.Vector(0, 0, 1), 1.2), math.radians(30), math.radians(150)),
    Part.ArcOfCircle(Part.Circle(App.Vector(-16, -13.6, 0), App.Vector(0, 0, 1), 1.2), math.radians(0), math.radians(30)),
    Part.ArcOfCircle(Part.Circle(App.Vector(-16, -13.6, 0), App.Vector(0, 0, 1), 1.3), math.radians(-90), math.radians(0)),
], False)
sketch15.addConstraint([
    Sketcher.Constraint("Coincident", 0, 2, 1, 1),
    Sketcher.Constraint("Coincident", 1, 2, 2, 1),
    Sketcher.Constraint("Coincident", 2, 2, 3, 1),
    Sketcher.Constraint("Coincident", 3, 2, 4, 1),
    Sketcher.Constraint("Coincident", 4, 2, 5, 1),
    Sketcher.Constraint("Coincident", 5, 2, 6, 1),
    Sketcher.Constraint("Coincident", 6, 2, 7, 1),
    Sketcher.Constraint("Coincident", 7, 2, 8, 1),
    Sketcher.Constraint("Coincident", 8, 2, 9, 1),
    Sketcher.Constraint("Coincident", 9, 2, 10, 1),
    Sketcher.Constraint("Coincident", 10, 2, 0, 1),
    Sketcher.Constraint("Tangent", 11, 1, 12, 2),
    Sketcher.Constraint("Tangent", 12, 1, 13, 2),
    Sketcher.Constraint("Tangent", 13, 1, 14, 2),
    Sketcher.Constraint("Tangent", 14, 1, 11, 2),
    Sketcher.Constraint("Vertical", 2),
    Sketcher.Constraint("Horizontal", 3),
    Sketcher.Constraint("Vertical", 4),
    Sketcher.Constraint("Equal", 11, 12),
    Sketcher.Constraint("Perpendicular", 0, 1),
    Sketcher.Constraint("Perpendicular", 5, 6),
    Sketcher.Constraint("Parallel", 6, 7),
    Sketcher.Constraint("Perpendicular", 7, 8),
    Sketcher.Constraint("Parallel", 1, 9),
    Sketcher.Constraint("Perpendicular", 9, 10),
    Sketcher.Constraint("Horizontal", 1, 2, 4, 2),
    Sketcher.Constraint("Horizontal", 0, 2, 5, 2),
    Sketcher.Constraint("Horizontal", 7, 2, 9, 2),
    Sketcher.Constraint("Horizontal", 6, 2, 10, 2),
    Sketcher.Constraint("Horizontal", 11, 1, 12, 1),
    Sketcher.Constraint("Horizontal", 14, 3, 13, 1),
    Sketcher.Constraint("Vertical", 14, 3, 8, 2),
    Sketcher.Constraint("Vertical", 8, 2, 14, 1),
    Sketcher.Constraint("Equal", 1, 5),
    Sketcher.Constraint("Equal", 6, 7),
    Sketcher.Constraint("Equal", 5, 8),
    Sketcher.Constraint("DistanceX", 3, 1, 3, 2, 4.0),
    Sketcher.Constraint("Angle", 0, Q("-120 deg")),
    Sketcher.Constraint("Radius", 11, 1.25),
    Sketcher.Constraint("DistanceY", 14, 3, 11, 1, 0.625),
    Sketcher.Constraint("DistanceY", 1, 2, 14, 3, 1.154701),
    Sketcher.Constraint("DistanceY", 2, 2, 2, 1, 19.433757),
    Sketcher.Constraint("DistanceY", 11, 3, -1, 1, 13.609749),
    Sketcher.Constraint("DistanceX", 0, 2, -1, 1, 34.786571),
    Sketcher.Constraint("DistanceY", 0, 2, -1, 1, 5.047572),
])
pad2 = doc.addObject("PartDesign::Pad", "Pad001")
body.addObject(pad2)
pad2.Profile = sketch15
pad2.Length = 3
pad2.Reversed = True
doc.recompute()

fillet2 = doc.addObject("PartDesign::Fillet", "Fillet001")
body.addObject(fillet2)
fillet2.Base = (pad2, edges_at(pad2, [
    (0.874, 1.5, -1.583),
    (2.874, 1.5, -5.048),
    (-13.956, 1.5, -14.764),
    (-13.956, 1.5, -34.198),
    (-17.956, 1.5, -34.198),
    (-17.956, 1.5, -14.764),
    (-34.787, 1.5, -5.048),
    (-32.787, 1.5, -1.583),
    (-15.956, 1.5, -11.3),
]))
fillet2.Radius = 3.5

doc.recompute()
